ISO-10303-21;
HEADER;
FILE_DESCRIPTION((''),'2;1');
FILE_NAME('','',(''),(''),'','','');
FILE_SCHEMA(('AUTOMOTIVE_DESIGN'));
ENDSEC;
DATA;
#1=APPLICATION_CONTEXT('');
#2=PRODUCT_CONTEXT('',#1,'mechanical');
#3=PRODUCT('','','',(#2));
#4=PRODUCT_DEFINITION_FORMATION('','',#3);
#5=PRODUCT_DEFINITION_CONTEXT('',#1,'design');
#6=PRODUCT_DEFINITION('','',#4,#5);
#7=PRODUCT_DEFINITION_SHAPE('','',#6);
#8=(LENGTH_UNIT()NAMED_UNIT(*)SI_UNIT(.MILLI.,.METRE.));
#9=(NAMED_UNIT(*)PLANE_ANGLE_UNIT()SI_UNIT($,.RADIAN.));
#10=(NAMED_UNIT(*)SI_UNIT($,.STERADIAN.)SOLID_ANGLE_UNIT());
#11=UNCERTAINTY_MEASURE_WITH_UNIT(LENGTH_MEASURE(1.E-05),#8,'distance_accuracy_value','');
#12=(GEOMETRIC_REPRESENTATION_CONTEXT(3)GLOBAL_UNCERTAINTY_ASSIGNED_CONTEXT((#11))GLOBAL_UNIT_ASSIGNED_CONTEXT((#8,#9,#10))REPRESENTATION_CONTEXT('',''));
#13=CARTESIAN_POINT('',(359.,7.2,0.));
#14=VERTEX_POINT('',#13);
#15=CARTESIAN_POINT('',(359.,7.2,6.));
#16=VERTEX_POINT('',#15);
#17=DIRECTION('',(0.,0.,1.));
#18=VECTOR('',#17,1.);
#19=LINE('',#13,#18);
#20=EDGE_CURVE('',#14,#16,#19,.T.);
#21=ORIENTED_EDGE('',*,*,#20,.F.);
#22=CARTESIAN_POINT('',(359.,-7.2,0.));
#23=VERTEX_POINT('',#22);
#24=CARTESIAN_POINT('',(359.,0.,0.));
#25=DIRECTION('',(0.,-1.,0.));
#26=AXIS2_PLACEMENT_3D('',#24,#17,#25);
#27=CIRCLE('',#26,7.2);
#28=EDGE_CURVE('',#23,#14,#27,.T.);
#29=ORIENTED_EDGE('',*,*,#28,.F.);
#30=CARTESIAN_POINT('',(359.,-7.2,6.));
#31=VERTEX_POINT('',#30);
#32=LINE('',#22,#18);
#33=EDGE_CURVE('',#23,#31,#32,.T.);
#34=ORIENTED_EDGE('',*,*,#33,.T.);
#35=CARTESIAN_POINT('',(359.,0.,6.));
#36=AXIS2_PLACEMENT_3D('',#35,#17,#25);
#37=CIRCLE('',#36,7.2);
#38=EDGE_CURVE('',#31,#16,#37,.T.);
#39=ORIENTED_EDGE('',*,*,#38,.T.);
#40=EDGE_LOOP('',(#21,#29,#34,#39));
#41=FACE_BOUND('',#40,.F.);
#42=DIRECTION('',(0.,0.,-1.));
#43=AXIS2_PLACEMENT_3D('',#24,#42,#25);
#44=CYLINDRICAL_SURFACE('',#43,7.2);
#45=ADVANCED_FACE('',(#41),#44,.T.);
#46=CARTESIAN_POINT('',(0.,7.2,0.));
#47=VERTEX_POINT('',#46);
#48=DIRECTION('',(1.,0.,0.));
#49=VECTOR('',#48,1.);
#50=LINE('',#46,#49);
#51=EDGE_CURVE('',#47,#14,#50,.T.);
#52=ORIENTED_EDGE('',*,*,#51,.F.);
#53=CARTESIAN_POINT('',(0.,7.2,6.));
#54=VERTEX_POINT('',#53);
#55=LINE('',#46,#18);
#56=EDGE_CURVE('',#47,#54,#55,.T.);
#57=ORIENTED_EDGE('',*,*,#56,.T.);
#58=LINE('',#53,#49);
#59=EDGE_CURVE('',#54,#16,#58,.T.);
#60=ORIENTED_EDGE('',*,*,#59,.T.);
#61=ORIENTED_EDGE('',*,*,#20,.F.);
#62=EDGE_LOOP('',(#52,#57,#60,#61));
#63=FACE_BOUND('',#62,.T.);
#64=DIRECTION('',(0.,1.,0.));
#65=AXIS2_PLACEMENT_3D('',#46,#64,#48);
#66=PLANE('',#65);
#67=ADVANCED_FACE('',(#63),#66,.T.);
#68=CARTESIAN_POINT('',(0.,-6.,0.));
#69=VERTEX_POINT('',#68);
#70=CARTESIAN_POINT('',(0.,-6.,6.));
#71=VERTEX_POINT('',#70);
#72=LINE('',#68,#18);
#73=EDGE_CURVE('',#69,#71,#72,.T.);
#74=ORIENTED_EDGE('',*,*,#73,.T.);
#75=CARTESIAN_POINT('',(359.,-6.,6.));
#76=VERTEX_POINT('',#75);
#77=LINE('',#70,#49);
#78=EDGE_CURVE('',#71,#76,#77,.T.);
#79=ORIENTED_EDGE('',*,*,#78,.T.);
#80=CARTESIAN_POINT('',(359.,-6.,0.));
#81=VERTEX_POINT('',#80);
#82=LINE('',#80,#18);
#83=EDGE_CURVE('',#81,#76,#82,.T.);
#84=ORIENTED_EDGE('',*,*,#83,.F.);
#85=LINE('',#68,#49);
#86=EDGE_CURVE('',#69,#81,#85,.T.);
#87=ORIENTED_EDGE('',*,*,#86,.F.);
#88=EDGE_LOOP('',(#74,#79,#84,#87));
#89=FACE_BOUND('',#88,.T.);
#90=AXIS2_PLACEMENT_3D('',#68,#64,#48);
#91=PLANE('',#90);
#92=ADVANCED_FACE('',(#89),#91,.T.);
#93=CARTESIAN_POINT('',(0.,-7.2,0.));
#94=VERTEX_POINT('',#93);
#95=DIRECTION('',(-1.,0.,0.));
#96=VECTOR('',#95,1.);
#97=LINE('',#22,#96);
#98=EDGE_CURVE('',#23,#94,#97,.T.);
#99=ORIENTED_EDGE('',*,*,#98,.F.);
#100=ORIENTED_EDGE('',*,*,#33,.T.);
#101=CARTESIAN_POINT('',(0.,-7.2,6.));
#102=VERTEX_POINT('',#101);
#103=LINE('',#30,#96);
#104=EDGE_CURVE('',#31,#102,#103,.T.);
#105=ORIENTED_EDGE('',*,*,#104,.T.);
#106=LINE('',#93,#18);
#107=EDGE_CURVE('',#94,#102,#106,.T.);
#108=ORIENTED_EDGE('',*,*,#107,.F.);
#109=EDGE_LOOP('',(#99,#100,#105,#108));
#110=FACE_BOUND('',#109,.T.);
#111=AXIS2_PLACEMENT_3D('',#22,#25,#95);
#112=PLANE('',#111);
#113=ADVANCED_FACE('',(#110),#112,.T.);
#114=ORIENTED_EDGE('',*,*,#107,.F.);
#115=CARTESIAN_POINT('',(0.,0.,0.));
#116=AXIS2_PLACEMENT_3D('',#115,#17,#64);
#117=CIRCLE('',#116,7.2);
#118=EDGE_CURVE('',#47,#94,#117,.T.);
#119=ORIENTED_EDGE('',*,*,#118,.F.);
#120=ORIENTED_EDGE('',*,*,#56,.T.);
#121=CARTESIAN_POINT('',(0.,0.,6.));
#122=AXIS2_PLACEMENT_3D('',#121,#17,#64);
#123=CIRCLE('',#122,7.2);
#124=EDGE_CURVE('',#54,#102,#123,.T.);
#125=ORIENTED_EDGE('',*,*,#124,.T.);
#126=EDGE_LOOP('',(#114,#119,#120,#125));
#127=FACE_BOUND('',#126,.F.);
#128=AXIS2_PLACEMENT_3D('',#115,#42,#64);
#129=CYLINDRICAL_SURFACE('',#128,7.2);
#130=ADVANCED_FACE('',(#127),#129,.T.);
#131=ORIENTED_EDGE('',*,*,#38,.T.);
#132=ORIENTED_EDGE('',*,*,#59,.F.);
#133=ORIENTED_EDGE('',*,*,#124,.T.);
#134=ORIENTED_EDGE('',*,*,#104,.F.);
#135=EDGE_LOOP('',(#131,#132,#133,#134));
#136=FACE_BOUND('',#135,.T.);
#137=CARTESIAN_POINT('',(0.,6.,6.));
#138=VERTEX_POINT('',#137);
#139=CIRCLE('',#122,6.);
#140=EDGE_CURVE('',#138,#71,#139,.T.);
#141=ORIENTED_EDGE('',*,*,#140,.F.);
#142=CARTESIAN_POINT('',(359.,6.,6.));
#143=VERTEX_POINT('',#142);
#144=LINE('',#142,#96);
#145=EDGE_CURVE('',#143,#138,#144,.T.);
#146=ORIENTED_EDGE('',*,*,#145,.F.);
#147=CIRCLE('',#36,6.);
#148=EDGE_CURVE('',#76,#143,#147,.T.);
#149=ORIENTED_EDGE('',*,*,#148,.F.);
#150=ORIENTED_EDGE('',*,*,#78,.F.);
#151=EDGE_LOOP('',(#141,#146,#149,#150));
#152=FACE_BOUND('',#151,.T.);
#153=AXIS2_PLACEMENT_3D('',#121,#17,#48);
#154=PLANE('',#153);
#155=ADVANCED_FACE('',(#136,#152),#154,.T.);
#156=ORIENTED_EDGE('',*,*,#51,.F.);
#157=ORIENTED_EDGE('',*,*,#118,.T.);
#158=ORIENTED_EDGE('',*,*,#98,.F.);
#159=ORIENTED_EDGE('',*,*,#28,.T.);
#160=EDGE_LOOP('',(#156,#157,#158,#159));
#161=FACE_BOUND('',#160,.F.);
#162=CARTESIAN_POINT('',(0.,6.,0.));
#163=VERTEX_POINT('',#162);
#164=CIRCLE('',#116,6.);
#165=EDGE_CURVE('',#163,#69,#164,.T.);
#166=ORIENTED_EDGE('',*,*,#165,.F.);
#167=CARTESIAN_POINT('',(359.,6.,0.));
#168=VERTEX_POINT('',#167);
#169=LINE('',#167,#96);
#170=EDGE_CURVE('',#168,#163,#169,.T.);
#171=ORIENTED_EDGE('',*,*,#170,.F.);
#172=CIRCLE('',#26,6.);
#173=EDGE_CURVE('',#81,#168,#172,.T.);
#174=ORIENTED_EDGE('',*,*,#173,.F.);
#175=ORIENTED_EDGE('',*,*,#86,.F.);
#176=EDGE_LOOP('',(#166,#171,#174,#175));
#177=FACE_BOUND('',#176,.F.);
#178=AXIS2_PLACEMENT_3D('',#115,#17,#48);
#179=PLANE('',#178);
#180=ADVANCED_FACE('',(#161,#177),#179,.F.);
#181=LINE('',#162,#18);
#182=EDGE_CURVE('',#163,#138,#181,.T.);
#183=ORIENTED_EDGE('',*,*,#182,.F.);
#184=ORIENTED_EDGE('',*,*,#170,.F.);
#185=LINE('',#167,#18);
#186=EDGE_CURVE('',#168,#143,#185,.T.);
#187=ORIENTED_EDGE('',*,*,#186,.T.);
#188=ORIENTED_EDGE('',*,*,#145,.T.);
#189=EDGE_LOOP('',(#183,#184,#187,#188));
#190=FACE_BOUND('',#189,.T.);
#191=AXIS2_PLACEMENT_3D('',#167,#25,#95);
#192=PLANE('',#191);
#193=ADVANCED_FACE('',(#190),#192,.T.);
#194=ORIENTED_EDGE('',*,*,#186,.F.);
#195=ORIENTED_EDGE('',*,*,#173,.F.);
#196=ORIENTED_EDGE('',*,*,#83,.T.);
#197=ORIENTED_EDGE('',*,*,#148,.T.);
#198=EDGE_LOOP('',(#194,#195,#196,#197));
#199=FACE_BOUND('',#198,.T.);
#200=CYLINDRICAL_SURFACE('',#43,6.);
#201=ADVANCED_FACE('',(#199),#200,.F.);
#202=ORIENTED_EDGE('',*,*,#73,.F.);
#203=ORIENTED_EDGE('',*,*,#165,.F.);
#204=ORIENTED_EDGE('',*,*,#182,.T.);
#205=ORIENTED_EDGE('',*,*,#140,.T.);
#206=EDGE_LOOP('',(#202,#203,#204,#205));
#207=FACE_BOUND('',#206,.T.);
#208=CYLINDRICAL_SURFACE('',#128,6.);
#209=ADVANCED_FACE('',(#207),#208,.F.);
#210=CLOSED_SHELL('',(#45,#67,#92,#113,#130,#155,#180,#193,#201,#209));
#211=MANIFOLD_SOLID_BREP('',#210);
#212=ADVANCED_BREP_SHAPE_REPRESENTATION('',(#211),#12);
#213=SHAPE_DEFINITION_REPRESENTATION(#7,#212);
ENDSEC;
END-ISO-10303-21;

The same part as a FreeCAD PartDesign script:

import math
import FreeCAD as App
import Part
import Sketcher

V = App.Vector

doc = App.newDocument("Part")
params = doc.addObject("Spreadsheet::Sheet", "Params")
for row, (alias, value) in enumerate([
    ("sketch1_radius", "6 mm"),
    ("sketch1_width", "359 mm"),
    ("sketch1_radius2", "7.2 mm"),
    ("pad1_length", "6 mm"),
], start=1):
    params.set(f"A{row}", alias)
    params.set(f"B{row}", "=" + value)
    params.setAlias(f"B{row}", alias)

body = doc.addObject("PartDesign::Body", "Body")

# Sketch on XY plane
sketch1 = body.newObject("Sketcher::SketchObject", "Sketch")
sketch1.AttachmentSupport = (doc.getObject("XY_Plane"), [""])
sketch1.MapMode = "FlatFace"
sketch1.addGeometry(Part.LineSegment(V(359, 7, 0), V(0, 7, 0)), False)
sketch1.addGeometry(Part.ArcOfCircle(Part.Circle(V(0, 0, 0), V(0, 0, 1), 7), math.radians(90), math.radians(270)), False)
sketch1.addGeometry(Part.LineSegment(V(0, -7, 0), V(359, -7, 0)), False)
sketch1.addGeometry(Part.ArcOfCircle(Part.Circle(V(359, 0, 0), V(0, 0, 1), 7), math.radians(-90), math.radians(90)), False)
sketch1.addGeometry(Part.ArcOfCircle(Part.Circle(V(0, 0, 0), V(0, 0, 1), 6), math.radians(90), math.radians(270)), False)
sketch1.addGeometry(Part.LineSegment(V(0, 6, 0), V(359, 6, 0)), False)
sketch1.addGeometry(Part.ArcOfCircle(Part.Circle(V(359, 0, 0), V(0, 0, 1), 6), math.radians(-90), math.radians(90)), False)
sketch1.addGeometry(Part.LineSegment(V(359, -6, 0), V(0, -6, 0)), False)
sketch1.addConstraint(Sketcher.Constraint("Tangent", 0, 2, 1, 1))
sketch1.addConstraint(Sketcher.Constraint("Tangent", 1, 2, 2, 1))
sketch1.addConstraint(Sketcher.Constraint("Tangent", 2, 2, 3, 1))
sketch1.addConstraint(Sketcher.Constraint("Tangent", 3, 2, 0, 1))
sketch1.addConstraint(Sketcher.Constraint("Tangent", 4, 1, 5, 1))
sketch1.addConstraint(Sketcher.Constraint("Tangent", 5, 2, 6, 2))
sketch1.addConstraint(Sketcher.Constraint("Tangent", 6, 1, 7, 1))
sketch1.addConstraint(Sketcher.Constraint("Tangent", 7, 2, 4, 2))
sketch1.addConstraint(Sketcher.Constraint("Horizontal", 0))
sketch1.addConstraint(Sketcher.Constraint("Horizontal", 2))
sketch1.addConstraint(Sketcher.Constraint("Horizontal", 5))
sketch1.addConstraint(Sketcher.Constraint("Horizontal", 7))
sketch1.addConstraint(Sketcher.Constraint("Coincident", 1, 3, -1, 1))
sketch1.addConstraint(Sketcher.Constraint("Coincident", 4, 3, -1, 1))
sketch1.addConstraint(Sketcher.Constraint("Vertical", 6, 3, 2, 2))
sketch1.addConstraint(Sketcher.Constraint("Radius", 4, 6.0))
sketch1.addConstraint(Sketcher.Constraint("DistanceX", 0, 2, 0, 1, 359.0))
sketch1.addConstraint(Sketcher.Constraint("Radius", 1, 7.2))
sketch1.setExpression("Constraints[15]", "Params.sketch1_radius")
sketch1.setExpression("Constraints[16]", "Params.sketch1_width")
sketch1.setExpression("Constraints[17]", "Params.sketch1_radius2")
pad1 = body.newObject("PartDesign::Pad", "Pad")
pad1.Profile = sketch1
pad1.setExpression("Length", "Params.pad1_length")

doc.recompute()
